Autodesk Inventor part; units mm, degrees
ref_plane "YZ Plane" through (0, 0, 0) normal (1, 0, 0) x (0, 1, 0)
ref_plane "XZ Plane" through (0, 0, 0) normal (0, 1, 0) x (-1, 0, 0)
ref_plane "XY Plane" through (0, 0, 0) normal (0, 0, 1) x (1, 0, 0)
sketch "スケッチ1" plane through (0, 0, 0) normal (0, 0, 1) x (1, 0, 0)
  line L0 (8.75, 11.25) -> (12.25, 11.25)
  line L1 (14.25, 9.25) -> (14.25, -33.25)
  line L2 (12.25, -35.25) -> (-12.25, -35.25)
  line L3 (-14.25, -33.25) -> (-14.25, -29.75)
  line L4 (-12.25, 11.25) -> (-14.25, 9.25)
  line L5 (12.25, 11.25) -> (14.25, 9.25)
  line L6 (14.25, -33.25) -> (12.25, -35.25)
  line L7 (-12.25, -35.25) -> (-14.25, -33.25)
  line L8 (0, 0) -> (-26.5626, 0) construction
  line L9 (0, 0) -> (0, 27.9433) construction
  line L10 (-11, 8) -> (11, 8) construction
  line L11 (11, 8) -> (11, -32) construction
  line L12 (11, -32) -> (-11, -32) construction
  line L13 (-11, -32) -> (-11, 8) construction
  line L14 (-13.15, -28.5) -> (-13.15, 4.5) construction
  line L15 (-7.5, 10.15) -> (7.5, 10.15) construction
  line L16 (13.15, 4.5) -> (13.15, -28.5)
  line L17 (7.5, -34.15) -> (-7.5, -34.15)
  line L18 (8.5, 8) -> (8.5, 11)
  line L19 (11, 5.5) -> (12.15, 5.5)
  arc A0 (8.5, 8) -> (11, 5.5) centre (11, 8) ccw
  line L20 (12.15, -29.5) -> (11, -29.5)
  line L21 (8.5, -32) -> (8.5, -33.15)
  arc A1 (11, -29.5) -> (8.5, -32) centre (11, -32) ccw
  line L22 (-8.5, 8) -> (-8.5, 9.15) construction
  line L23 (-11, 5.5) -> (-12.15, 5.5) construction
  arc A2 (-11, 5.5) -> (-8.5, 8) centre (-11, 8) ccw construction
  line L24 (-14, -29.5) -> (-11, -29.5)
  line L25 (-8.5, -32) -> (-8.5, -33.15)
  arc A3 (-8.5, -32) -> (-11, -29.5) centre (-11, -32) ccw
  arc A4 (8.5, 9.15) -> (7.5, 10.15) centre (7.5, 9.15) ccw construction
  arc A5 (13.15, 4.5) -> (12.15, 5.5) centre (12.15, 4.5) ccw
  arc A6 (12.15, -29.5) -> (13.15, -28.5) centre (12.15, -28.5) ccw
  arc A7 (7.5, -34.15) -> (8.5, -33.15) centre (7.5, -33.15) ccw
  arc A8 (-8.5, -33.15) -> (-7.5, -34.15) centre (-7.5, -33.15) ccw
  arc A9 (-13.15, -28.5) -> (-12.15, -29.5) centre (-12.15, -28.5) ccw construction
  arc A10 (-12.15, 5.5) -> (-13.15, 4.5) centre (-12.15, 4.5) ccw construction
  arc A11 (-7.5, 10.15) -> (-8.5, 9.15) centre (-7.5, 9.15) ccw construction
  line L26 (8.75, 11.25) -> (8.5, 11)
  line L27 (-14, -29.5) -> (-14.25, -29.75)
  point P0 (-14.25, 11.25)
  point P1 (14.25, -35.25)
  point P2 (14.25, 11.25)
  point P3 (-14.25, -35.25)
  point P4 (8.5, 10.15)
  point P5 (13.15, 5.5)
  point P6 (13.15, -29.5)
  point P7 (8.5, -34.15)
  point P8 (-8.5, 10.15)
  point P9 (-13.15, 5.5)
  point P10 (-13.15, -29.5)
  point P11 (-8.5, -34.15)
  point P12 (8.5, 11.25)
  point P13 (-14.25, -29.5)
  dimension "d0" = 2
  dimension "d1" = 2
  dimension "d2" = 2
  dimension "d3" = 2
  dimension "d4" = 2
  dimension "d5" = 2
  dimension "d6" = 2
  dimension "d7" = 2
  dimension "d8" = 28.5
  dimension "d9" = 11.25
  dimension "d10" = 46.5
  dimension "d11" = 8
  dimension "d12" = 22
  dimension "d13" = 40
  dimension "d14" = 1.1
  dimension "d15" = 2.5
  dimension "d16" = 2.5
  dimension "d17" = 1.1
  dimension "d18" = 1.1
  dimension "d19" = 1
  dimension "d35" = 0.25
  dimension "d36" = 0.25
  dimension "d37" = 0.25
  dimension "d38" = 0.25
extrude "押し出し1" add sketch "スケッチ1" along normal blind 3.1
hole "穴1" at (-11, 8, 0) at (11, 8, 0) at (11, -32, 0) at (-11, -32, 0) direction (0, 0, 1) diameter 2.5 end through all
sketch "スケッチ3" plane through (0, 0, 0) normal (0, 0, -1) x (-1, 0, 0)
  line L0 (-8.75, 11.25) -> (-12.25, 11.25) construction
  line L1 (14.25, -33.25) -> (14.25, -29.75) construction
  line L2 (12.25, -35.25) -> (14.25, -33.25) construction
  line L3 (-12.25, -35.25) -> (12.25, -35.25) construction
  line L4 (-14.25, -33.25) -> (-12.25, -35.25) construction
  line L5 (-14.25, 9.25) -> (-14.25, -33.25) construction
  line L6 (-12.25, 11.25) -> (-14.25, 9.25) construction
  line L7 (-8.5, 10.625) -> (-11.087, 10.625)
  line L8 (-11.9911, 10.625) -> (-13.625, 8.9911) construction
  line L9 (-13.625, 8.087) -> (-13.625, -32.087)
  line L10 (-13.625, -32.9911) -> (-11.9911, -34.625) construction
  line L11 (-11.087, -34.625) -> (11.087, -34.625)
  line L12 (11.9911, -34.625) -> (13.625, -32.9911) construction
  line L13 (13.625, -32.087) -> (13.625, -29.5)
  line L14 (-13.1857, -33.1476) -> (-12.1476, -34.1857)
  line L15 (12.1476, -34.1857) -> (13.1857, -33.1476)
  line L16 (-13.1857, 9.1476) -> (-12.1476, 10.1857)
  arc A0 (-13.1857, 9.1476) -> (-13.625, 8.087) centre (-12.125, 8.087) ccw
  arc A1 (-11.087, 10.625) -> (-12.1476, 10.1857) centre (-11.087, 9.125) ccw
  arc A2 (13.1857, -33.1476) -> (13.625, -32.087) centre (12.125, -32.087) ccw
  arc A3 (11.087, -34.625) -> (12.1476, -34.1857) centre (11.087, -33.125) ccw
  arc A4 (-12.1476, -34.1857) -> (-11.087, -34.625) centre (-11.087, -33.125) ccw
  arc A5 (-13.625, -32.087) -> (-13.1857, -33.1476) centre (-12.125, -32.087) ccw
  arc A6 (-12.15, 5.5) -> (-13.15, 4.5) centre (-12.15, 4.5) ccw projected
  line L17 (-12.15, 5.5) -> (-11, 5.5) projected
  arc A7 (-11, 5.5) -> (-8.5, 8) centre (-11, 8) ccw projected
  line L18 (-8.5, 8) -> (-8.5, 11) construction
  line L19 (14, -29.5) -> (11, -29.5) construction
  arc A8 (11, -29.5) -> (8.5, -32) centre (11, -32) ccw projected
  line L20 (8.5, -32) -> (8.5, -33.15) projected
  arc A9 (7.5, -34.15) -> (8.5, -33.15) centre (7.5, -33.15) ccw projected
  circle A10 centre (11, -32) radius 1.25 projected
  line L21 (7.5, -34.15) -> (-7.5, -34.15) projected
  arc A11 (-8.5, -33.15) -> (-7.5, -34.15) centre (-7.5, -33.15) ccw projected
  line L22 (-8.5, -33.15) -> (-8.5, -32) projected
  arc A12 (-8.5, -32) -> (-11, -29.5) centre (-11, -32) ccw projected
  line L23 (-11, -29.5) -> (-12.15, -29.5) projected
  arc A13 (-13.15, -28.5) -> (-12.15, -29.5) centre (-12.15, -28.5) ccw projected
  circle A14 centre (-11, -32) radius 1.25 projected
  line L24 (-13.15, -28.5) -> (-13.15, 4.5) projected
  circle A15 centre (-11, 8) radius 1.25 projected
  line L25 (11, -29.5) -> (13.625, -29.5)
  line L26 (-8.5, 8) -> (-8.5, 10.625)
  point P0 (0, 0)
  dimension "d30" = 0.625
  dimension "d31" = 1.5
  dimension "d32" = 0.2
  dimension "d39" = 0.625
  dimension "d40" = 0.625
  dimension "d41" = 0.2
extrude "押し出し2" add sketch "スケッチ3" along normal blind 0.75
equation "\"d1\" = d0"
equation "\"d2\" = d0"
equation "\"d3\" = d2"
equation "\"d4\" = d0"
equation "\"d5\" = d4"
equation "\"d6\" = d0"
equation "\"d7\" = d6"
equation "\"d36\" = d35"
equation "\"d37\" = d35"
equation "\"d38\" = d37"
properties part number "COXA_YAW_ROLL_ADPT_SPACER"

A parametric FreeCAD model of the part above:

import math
import FreeCAD as App
import Part
import Sketcher
from FreeCAD import Vector

doc = App.newDocument("Part")
body = doc.addObject("PartDesign::Body", "Body")

# Sketch on XY plane
sketch1 = body.newObject("Sketcher::SketchObject", "Sketch")
sketch1.AttachmentSupport = (doc.getObject("XY_Plane"), [""])
sketch1.MapMode = "FlatFace"
sketch1.addGeometry([
    Part.LineSegment(Vector(12.25, 11.25, 0), Vector(8.75, 11.25, 0)),  # 0
    Part.LineSegment(Vector(8.75, 11.25, 0), Vector(8.5, 11, 0)),  # 1
    Part.LineSegment(Vector(8.5, 11, 0), Vector(8.5, 8, 0)),  # 2
    Part.ArcOfCircle(Part.Circle(Vector(11, 8, 0), Vector(0, 0, 1), 2.5), math.radians(180), math.radians(270)),  # 3
    Part.LineSegment(Vector(11, 5.5, 0), Vector(12.15, 5.5, 0)),  # 4
    Part.ArcOfCircle(Part.Circle(Vector(12.15, 4.5, 0), Vector(0, 0, 1), 1), math.radians(0), math.radians(90)),  # 5
    Part.LineSegment(Vector(13.15, 4.5, 0), Vector(13.15, -28.5, 0)),  # 6
    Part.ArcOfCircle(Part.Circle(Vector(12.15, -28.5, 0), Vector(0, 0, 1), 1), math.radians(-90), math.radians(0)),  # 7
    Part.LineSegment(Vector(12.15, -29.5, 0), Vector(11, -29.5, 0)),  # 8
    Part.ArcOfCircle(Part.Circle(Vector(11, -32, 0), Vector(0, 0, 1), 2.5), math.radians(90), math.radians(180)),  # 9
    Part.LineSegment(Vector(8.5, -32, 0), Vector(8.5, -33.15, 0)),  # 10
    Part.ArcOfCircle(Part.Circle(Vector(7.5, -33.15, 0), Vector(0, 0, 1), 1), math.radians(-90), math.radians(0)),  # 11
    Part.LineSegment(Vector(7.5, -34.15, 0), Vector(-7.5, -34.15, 0)),  # 12
    Part.ArcOfCircle(Part.Circle(Vector(-7.5, -33.15, 0), Vector(0, 0, 1), 1), math.radians(180), math.radians(270)),  # 13
    Part.LineSegment(Vector(-8.5, -33.15, 0), Vector(-8.5, -32, 0)),  # 14
    Part.ArcOfCircle(Part.Circle(Vector(-11, -32, 0), Vector(0, 0, 1), 2.5), math.radians(0), math.radians(90)),  # 15
    Part.LineSegment(Vector(-11, -29.5, 0), Vector(-14, -29.5, 0)),  # 16
    Part.LineSegment(Vector(-14, -29.5, 0), Vector(-14.25, -29.75, 0)),  # 17
    Part.LineSegment(Vector(-14.25, -29.75, 0), Vector(-14.25, -33.25, 0)),  # 18
    Part.LineSegment(Vector(-14.25, -33.25, 0), Vector(-12.25, -35.25, 0)),  # 19
    Part.LineSegment(Vector(-12.25, -35.25, 0), Vector(12.25, -35.25, 0)),  # 20
    Part.LineSegment(Vector(12.25, -35.25, 0), Vector(14.25, -33.25, 0)),  # 21
    Part.LineSegment(Vector(14.25, -33.25, 0), Vector(14.25, 9.25, 0)),  # 22
    Part.LineSegment(Vector(14.25, 9.25, 0), Vector(12.25, 11.25, 0)),  # 23
], False)
sketch1.addConstraint([
    Sketcher.Constraint("Coincident", 0, 2, 1, 1),
    Sketcher.Constraint("Coincident", 1, 2, 2, 1),
    Sketcher.Constraint("Tangent", 2, 2, 3, 1),
    Sketcher.Constraint("Tangent", 3, 2, 4, 1),
    Sketcher.Constraint("Tangent", 4, 2, 5, 2),
    Sketcher.Constraint("Tangent", 5, 1, 6, 1),
    Sketcher.Constraint("Tangent", 6, 2, 7, 2),
    Sketcher.Constraint("Tangent", 7, 1, 8, 1),
    Sketcher.Constraint("Tangent", 8, 2, 9, 1),
    Sketcher.Constraint("Tangent", 9, 2, 10, 1),
    Sketcher.Constraint("Tangent", 10, 2, 11, 2),
    Sketcher.Constraint("Tangent", 11, 1, 12, 1),
    Sketcher.Constraint("Tangent", 12, 2, 13, 2),
    Sketcher.Constraint("Tangent", 13, 1, 14, 1),
    Sketcher.Constraint("Tangent", 14, 2, 15, 1),
    Sketcher.Constraint("Tangent", 15, 2, 16, 1),
    Sketcher.Constraint("Coincident", 16, 2, 17, 1),
    Sketcher.Constraint("Coincident", 17, 2, 18, 1),
    Sketcher.Constraint("Coincident", 18, 2, 19, 1),
    Sketcher.Constraint("Coincident", 19, 2, 20, 1),
    Sketcher.Constraint("Coincident", 20, 2, 21, 1),
    Sketcher.Constraint("Coincident", 21, 2, 22, 1),
    Sketcher.Constraint("Coincident", 22, 2, 23, 1),
    Sketcher.Constraint("Coincident", 23, 2, 0, 1),
    Sketcher.Constraint("Horizontal", 0),
    Sketcher.Constraint("Vertical", 2),
    Sketcher.Constraint("Horizontal", 4),
    Sketcher.Constraint("Vertical", 6),
    Sketcher.Constraint("Horizontal", 8),
    Sketcher.Constraint("Vertical", 10),
    Sketcher.Constraint("Horizontal", 12),
    Sketcher.Constraint("Vertical", 14),
    Sketcher.Constraint("Horizontal", 16),
    Sketcher.Constraint("Vertical", 18),
    Sketcher.Constraint("Horizontal", 20),
    Sketcher.Constraint("Vertical", 22),
    Sketcher.Constraint("Equal", 5, 7),
    Sketcher.Constraint("Equal", 3, 9),
    Sketcher.Constraint("Equal", 7, 11),
    Sketcher.Constraint("Equal", 11, 13),
    Sketcher.Constraint("Equal", 9, 15),
    Sketcher.Constraint("Symmetric", 9, 3, 15, 3, -2),
    Sketcher.Constraint("Symmetric", 18, 2, 21, 2, -2),
    Sketcher.Constraint("Parallel", 1, 17),
    Sketcher.Constraint("Perpendicular", 17, 19),
    Sketcher.Constraint("Perpendicular", 19, 21),
    Sketcher.Constraint("Perpendicular", 21, 23),
    Sketcher.Constraint("Vertical", 3, 3, 9, 3),
    Sketcher.Constraint("Vertical", 20, 2, 23, 2),
    Sketcher.Constraint("Equal", 16, 2),
    Sketcher.Constraint("Equal", 8, 10),
    Sketcher.Constraint("Equal", 0, 18),
    Sketcher.Constraint("Equal", 1, 17),
    Sketcher.Constraint("Equal", 19, 21),
    Sketcher.Constraint("Radius", 5, 1.0),
    Sketcher.Constraint("Radius", 3, 2.5),
    Sketcher.Constraint("DistanceY", -1, 1, 3, 3, 8.0),
    Sketcher.Constraint("DistanceY", 9, 3, 3, 3, 40.0),
    Sketcher.Constraint("DistanceX", 15, 3, 9, 3, 22.0),
    Sketcher.Constraint("DistanceX", 18, 2, 19, 2, 2.0),
    Sketcher.Constraint("DistanceY", 19, 2, 12, 2, 1.1),
    Sketcher.Constraint("DistanceX", 16, 2, 16, 1, 3.0),
    Sketcher.Constraint("DistanceY", -1, 1, 0, 2, 11.25),
])
pad1 = body.newObject("PartDesign::Pad", "Pad")
pad1.Profile = sketch1
pad1.Length = 3.1

# Sketch on XY plane
sketch2 = body.newObject("Sketcher::SketchObject", "Sketch001")
sketch2.AttachmentSupport = (doc.getObject("XY_Plane"), [""])
sketch2.MapMode = "FlatFace"
sketch2.addGeometry([
    Part.Circle(Vector(-11, 8, 0), Vector(0, 0, 1), 1.25),
    Part.Circle(Vector(11, 8, 0), Vector(0, 0, 1), 1.25),
    Part.Circle(Vector(11, -32, 0), Vector(0, 0, 1), 1.25),
    Part.Circle(Vector(-11, -32, 0), Vector(0, 0, 1), 1.25),
], False)
sketch2.addConstraint([
    Sketcher.Constraint("Equal", 0, 1),
    Sketcher.Constraint("Equal", 1, 2),
    Sketcher.Constraint("Equal", 2, 3),
    Sketcher.Constraint("Symmetric", 0, 3, 1, 3, -2),
    Sketcher.Constraint("Symmetric", 2, 3, 3, 3, -2),
    Sketcher.Constraint("Vertical", 1, 3, 2, 3),
    Sketcher.Constraint("Diameter", 0, 2.5),
    Sketcher.Constraint("DistanceX", 0, 3, -1, 1, 11.0),
    Sketcher.Constraint("DistanceY", -1, 1, 0, 3, 8.0),
    Sketcher.Constraint("DistanceY", 2, 3, -1, 1, 32.0),
])
doc.recompute()
hole = body.newObject("PartDesign::Hole", "Hole")
hole.Profile = sketch2
hole.ThreadType = "None"
hole.Diameter = 2.5
hole.DepthType = "ThroughAll"
hole.Reversed = True

# Sketch on XY plane
sketch3 = body.newObject("Sketcher::SketchObject", "Sketch002")
sketch3.AttachmentSupport = (doc.getObject("XY_Plane"), [""])
sketch3.MapMode = "FlatFace"
sketch3.addGeometry([
    Part.LineSegment(Vector(8.5, 8, 0), Vector(8.5, 10.625, 0)),  # 0
    Part.LineSegment(Vector(8.5, 10.625, 0), Vector(11.087, 10.625, 0)),  # 1
    Part.ArcOfCircle(Part.Circle(Vector(11.087, 9.125, 0), Vector(0, 0, 1), 1.5), math.radians(45.002701), math.radians(90)),  # 2
    Part.LineSegment(Vector(12.1476, 10.1857, 0), Vector(13.1857, 9.1476, 0)),  # 3
    Part.ArcOfCircle(Part.Circle(Vector(12.125, 8.087, 0), Vector(0, 0, 1), 1.499986), math.radians(0), math.radians(44.997299)),  # 4
    Part.LineSegment(Vector(13.625, 8.087, 0), Vector(13.625, -32.087, 0)),  # 5
    Part.ArcOfCircle(Part.Circle(Vector(12.125, -32.087, 0), Vector(0, 0, 1), 1.5), math.radians(-44.997299), math.radians(0)),  # 6
    Part.LineSegment(Vector(13.1857, -33.1476, 0), Vector(12.1476, -34.1857, 0)),  # 7
    Part.ArcOfCircle(Part.Circle(Vector(11.087, -33.125, 0), Vector(0, 0, 1), 1.499986), math.radians(-90), math.radians(-45.002701)),  # 8
    Part.LineSegment(Vector(11.087, -34.625, 0), Vector(-11.087, -34.625, 0)),  # 9
    Part.ArcOfCircle(Part.Circle(Vector(-11.087, -33.125, 0), Vector(0, 0, 1), 1.5), math.radians(-134.997299), math.radians(-90)),  # 10
    Part.LineSegment(Vector(-12.1476, -34.1857, 0), Vector(-13.1857, -33.1476, 0)),  # 11
    Part.ArcOfCircle(Part.Circle(Vector(-12.125, -32.087, 0), Vector(0, 0, 1), 1.499986), math.radians(180), math.radians(224.997299)),  # 12
    Part.LineSegment(Vector(-13.625, -32.087, 0), Vector(-13.625, -29.5, 0)),  # 13
    Part.LineSegment(Vector(-13.625, -29.5, 0), Vector(-11, -29.5, 0)),  # 14
    Part.ArcOfCircle(Part.Circle(Vector(-11, -32, 0), Vector(0, 0, 1), 2.5), math.radians(0), math.radians(90)),  # 15
    Part.LineSegment(Vector(-8.5, -32, 0), Vector(-8.5, -33.15, 0)),  # 16
    Part.ArcOfCircle(Part.Circle(Vector(-7.5, -33.15, 0), Vector(0, 0, 1), 1), math.radians(180), math.radians(270)),  # 17
    Part.LineSegment(Vector(-7.5, -34.15, 0), Vector(7.5, -34.15, 0)),  # 18
    Part.ArcOfCircle(Part.Circle(Vector(7.5, -33.15, 0), Vector(0, 0, 1), 1), math.radians(-90), math.radians(0)),  # 19
    Part.LineSegment(Vector(8.5, -33.15, 0), Vector(8.5, -32, 0)),  # 20
    Part.ArcOfCircle(Part.Circle(Vector(11, -32, 0), Vector(0, 0, 1), 2.5), math.radians(90), math.radians(180)),  # 21
    Part.LineSegment(Vector(11, -29.5, 0), Vector(12.15, -29.5, 0)),  # 22
    Part.ArcOfCircle(Part.Circle(Vector(12.15, -28.5, 0), Vector(0, 0, 1), 1), math.radians(-90), math.radians(0)),  # 23
    Part.LineSegment(Vector(13.15, -28.5, 0), Vector(13.15, 4.5, 0)),  # 24
    Part.ArcOfCircle(Part.Circle(Vector(12.15, 4.5, 0), Vector(0, 0, 1), 1), math.radians(0), math.radians(90)),  # 25
    Part.LineSegment(Vector(12.15, 5.5, 0), Vector(11, 5.5, 0)),  # 26
    Part.ArcOfCircle(Part.Circle(Vector(11, 8, 0), Vector(0, 0, 1), 2.5), math.radians(180), math.radians(270)),  # 27
    Part.Circle(Vector(11, -32, 0), Vector(0, 0, 1), 1.25),  # 28
    Part.Circle(Vector(-11, -32, 0), Vector(0, 0, 1), 1.25),  # 29
    Part.Circle(Vector(11, 8, 0), Vector(0, 0, 1), 1.25),  # 30
], False)
sketch3.addConstraint([
    Sketcher.Constraint("Coincident", 0, 2, 1, 1),
    Sketcher.Constraint("Tangent", 1, 2, 2, 2),
    Sketcher.Constraint("Tangent", 2, 1, 3, 1),
    Sketcher.Constraint("Tangent", 3, 2, 4, 2),
    Sketcher.Constraint("Tangent", 4, 1, 5, 1),
    Sketcher.Constraint("Tangent", 5, 2, 6, 2),
    Sketcher.Constraint("Tangent", 6, 1, 7, 1),
    Sketcher.Constraint("Tangent", 7, 2, 8, 2),
    Sketcher.Constraint("Tangent", 8, 1, 9, 1),
    Sketcher.Constraint("Tangent", 9, 2, 10, 2),
    Sketcher.Constraint("Tangent", 10, 1, 11, 1),
    Sketcher.Constraint("Tangent", 11, 2, 12, 2),
    Sketcher.Constraint("Tangent", 12, 1, 13, 1),
    Sketcher.Constraint("Coincident", 13, 2, 14, 1),
    Sketcher.Constraint("Tangent", 14, 2, 15, 2),
    Sketcher.Constraint("Tangent", 15, 1, 16, 1),
    Sketcher.Constraint("Tangent", 16, 2, 17, 1),
    Sketcher.Constraint("Tangent", 17, 2, 18, 1),
    Sketcher.Constraint("Tangent", 18, 2, 19, 1),
    Sketcher.Constraint("Tangent", 19, 2, 20, 1),
    Sketcher.Constraint("Tangent", 20, 2, 21, 2),
    Sketcher.Constraint("Tangent", 21, 1, 22, 1),
    Sketcher.Constraint("Tangent", 22, 2, 23, 1),
    Sketcher.Constraint("Tangent", 23, 2, 24, 1),
    Sketcher.Constraint("Tangent", 24, 2, 25, 1),
    Sketcher.Constraint("Tangent", 25, 2, 26, 1),
    Sketcher.Constraint("Tangent", 26, 2, 27, 2),
    Sketcher.Constraint("Tangent", 27, 1, 0, 1),
    Sketcher.Constraint("Vertical", 0),
    Sketcher.Constraint("Horizontal", 1),
    Sketcher.Constraint("Vertical", 5),
    Sketcher.Constraint("Horizontal", 9),
    Sketcher.Constraint("Vertical", 13),
    Sketcher.Constraint("Horizontal", 14),
    Sketcher.Constraint("Vertical", 16),
    Sketcher.Constraint("Horizontal", 18),
    Sketcher.Constraint("Vertical", 20),
    Sketcher.Constraint("Horizontal", 22),
    Sketcher.Constraint("Vertical", 24),
    Sketcher.Constraint("Horizontal", 26),
    Sketcher.Constraint("Coincident", 28, 3, 21, 3),
    Sketcher.Constraint("Coincident", 29, 3, 15, 3),
    Sketcher.Constraint("Coincident", 30, 3, 27, 3),
    Sketcher.Constraint("Equal", 2, 4),
    Sketcher.Constraint("Equal", 4, 6),
    Sketcher.Constraint("Equal", 6, 8),
    Sketcher.Constraint("Equal", 8, 10),
    Sketcher.Constraint("Equal", 10, 12),
    Sketcher.Constraint("Equal", 17, 19),
    Sketcher.Constraint("Equal", 15, 21),
    Sketcher.Constraint("Equal", 19, 23),
    Sketcher.Constraint("Equal", 23, 25),
    Sketcher.Constraint("Equal", 21, 27),
    Sketcher.Constraint("Equal", 28, 29),
    Sketcher.Constraint("Equal", 29, 30),
    Sketcher.Constraint("Symmetric", 6, 3, 12, 3, -2),
    Sketcher.Constraint("Symmetric", 15, 3, 21, 3, -2),
    Sketcher.Constraint("Perpendicular", 3, 7),
    Sketcher.Constraint("Perpendicular", 7, 11),
    Sketcher.Constraint("Horizontal", 7, 2, 10, 1),
    Sketcher.Constraint("Vertical", 2, 3, 8, 3),
    Sketcher.Constraint("Vertical", 21, 3, 27, 3),
    Sketcher.Constraint("Equal", 14, 0),
    Sketcher.Constraint("Equal", 1, 13),
    Sketcher.Constraint("Equal", 26, 16),
    Sketcher.Constraint("Radius", 2, 1.5),
    Sketcher.Constraint("Radius", 17, 1.0),
    Sketcher.Constraint("Diameter", 28, 2.5),
    Sketcher.Constraint("Radius", 15, 2.5),
    Sketcher.Constraint("DistanceX", 18, 1, 18, 2, 15.0),
    Sketcher.Constraint("DistanceY", 24, 1, 24, 2, 33.0),
    Sketcher.Constraint("DistanceY", 15, 3, -1, 1, 32.0),
    Sketcher.Constraint("DistanceX", 22, 1, 22, 2, 1.15),
    Sketcher.Constraint("DistanceX", 1, 1, 1, 2, 2.587),
    Sketcher.Constraint("DistanceX", 14, 1, 14, 2, 2.625),
])
pad2 = body.newObject("PartDesign::Pad", "Pad001")
pad2.Profile = sketch3
pad2.Length = 0.75
pad2.Reversed = True

doc.recompute()
